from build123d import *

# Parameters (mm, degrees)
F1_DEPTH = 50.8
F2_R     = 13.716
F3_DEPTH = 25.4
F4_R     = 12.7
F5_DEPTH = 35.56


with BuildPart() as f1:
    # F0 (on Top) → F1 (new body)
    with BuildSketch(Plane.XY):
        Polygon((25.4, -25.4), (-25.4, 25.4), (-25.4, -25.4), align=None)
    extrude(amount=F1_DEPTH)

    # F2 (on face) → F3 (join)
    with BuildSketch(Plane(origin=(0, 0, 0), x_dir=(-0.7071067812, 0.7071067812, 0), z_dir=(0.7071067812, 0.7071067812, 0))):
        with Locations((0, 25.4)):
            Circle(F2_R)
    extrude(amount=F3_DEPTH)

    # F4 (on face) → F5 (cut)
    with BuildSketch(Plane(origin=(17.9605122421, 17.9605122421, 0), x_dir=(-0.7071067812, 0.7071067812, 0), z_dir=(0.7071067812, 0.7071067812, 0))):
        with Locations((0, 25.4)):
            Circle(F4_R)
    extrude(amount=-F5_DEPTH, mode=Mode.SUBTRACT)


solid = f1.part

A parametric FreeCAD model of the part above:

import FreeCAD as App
import Part
import Sketcher
Q = App.Units.Quantity

doc = App.newDocument("Part")
body = doc.addObject("PartDesign::Body", "Body")

# Sketch on XY plane
sketch1 = body.newObject("Sketcher::SketchObject", "Sketch")
sketch1.AttachmentSupport = (doc.getObject("XY_Plane"), [""])
sketch1.MapMode = "FlatFace"
sketch1.addGeometry(Part.LineSegment(App.Vector(25.4, -25.4, 0), App.Vector(-25.4, 25.4, 0)), False)
sketch1.addGeometry(Part.LineSegment(App.Vector(-25.4, 25.4, 0), App.Vector(-25.4, -25.4, 0)), False)
sketch1.addGeometry(Part.LineSegment(App.Vector(-25.4, -25.4, 0), App.Vector(25.4, -25.4, 0)), False)
sketch1.addConstraint(Sketcher.Constraint("Coincident", 0, 2, 1, 1))
sketch1.addConstraint(Sketcher.Constraint("Coincident", 1, 2, 2, 1))
sketch1.addConstraint(Sketcher.Constraint("Coincident", 2, 2, 0, 1))
sketch1.addConstraint(Sketcher.Constraint("Vertical", 1))
sketch1.addConstraint(Sketcher.Constraint("Horizontal", 2))
sketch1.addConstraint(Sketcher.Constraint("Symmetric", 0, 2, 2, 2, -1, 1))
sketch1.addConstraint(Sketcher.Constraint("Equal", 2, 1))
sketch1.addConstraint(Sketcher.Constraint("DistanceX", 2, 1, 2, 2, Q("2 in")))
pad1 = body.newObject("PartDesign::Pad", "Pad")
pad1.Profile = sketch1
pad1.Length = Q("2 in")

# Sketch on an angled plane
sketch2 = body.newObject("Sketcher::SketchObject", "Sketch001")
sketch2.Placement = App.Placement(App.Vector(0, 0, 0), App.Rotation(App.Vector(-0.707106781, 0.707106781, 0), App.Vector(0, 0, 0.999999999), App.Vector(0.707106781, 0.707106781, 0), "ZXY"))
sketch2.addGeometry(Part.Circle(App.Vector(0, 25.4, 0), App.Vector(0, 0, 1), 13.716), False)
sketch2.addConstraint(Sketcher.Constraint("PointOnObject", 0, 3, -2))
sketch2.addConstraint(Sketcher.Constraint("Diameter", 0, Q("1.08 in")))
sketch2.addConstraint(Sketcher.Constraint("DistanceY", -1, 1, 0, 3, Q("1 in")))
pad2 = body.newObject("PartDesign::Pad", "Pad001")
pad2.Profile = sketch2
pad2.Length = Q("1 in")

# Sketch on an angled plane
sketch3 = body.newObject("Sketcher::SketchObject", "Sketch002")
sketch3.Placement = App.Placement(App.Vector(17.960512, 17.960512, 0), App.Rotation(App.Vector(-0.707106781, 0.707106781, 0), App.Vector(0, 0, 0.999999999), App.Vector(0.707106781, 0.707106781, 0), "ZXY"))
sketch3.addGeometry(Part.Circle(App.Vector(0, 25.4, 0), App.Vector(0, 0, 1), 12.7), False)
sketch3.addConstraint(Sketcher.Constraint("PointOnObject", 0, 3, -2))
sketch3.addConstraint(Sketcher.Constraint("Diameter", 0, Q("1 in")))
sketch3.addConstraint(Sketcher.Constraint("DistanceY", -1, 1, 0, 3, Q("1 in")))
pocket1 = body.newObject("PartDesign::Pocket", "Pocket")
pocket1.Profile = sketch3
pocket1.Length = Q("1.4 in")

doc.recompute()
